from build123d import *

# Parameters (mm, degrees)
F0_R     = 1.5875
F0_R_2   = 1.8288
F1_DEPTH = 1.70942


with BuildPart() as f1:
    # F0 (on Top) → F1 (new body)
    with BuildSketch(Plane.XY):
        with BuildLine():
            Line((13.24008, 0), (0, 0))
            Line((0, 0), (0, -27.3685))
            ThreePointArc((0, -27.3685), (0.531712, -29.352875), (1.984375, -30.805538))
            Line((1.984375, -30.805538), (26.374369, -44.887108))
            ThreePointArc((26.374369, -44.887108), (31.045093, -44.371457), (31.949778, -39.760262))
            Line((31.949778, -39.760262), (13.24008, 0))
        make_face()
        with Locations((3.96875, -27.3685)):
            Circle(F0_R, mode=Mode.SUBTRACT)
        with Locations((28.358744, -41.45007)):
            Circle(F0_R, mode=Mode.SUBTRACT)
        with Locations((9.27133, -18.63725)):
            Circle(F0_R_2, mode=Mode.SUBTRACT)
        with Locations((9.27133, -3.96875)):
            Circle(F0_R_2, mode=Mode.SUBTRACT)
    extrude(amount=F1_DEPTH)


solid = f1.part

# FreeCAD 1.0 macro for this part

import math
import FreeCAD as App
import Part
import Sketcher

V = App.Vector
Q = App.Units.Quantity

doc = App.newDocument("Part")
body = doc.addObject("PartDesign::Body", "Body")

sketch1 = body.newObject("Sketcher::SketchObject", "Sketch")
sketch1.AttachmentSupport = (doc.getObject("XY_Plane"), [""])
sketch1.MapMode = "FlatFace"
sketch1.addGeometry([
    Part.LineSegment(V(13.24008, 0, 0), V(0, 0, 0)),
    Part.LineSegment(V(0, 0, 0), V(0, -27.3685, 0)),
    Part.ArcOfCircle(Part.Circle(V(3.968751, -27.368499, 0), V(0, 0, 1), 3.968751), math.radians(-179.999989), math.radians(-120.000006)),
    Part.LineSegment(V(1.984375, -30.805538, 0), V(26.374369, -44.887108, 0)),
    Part.ArcOfCircle(Part.Circle(V(28.358744, -41.45007, 0), V(0, 0, 1), 3.96875), math.radians(-119.999997), math.radians(25.199937)),
    Part.LineSegment(V(31.949778, -39.760262, 0), V(13.24008, 0, 0)),
    Part.Circle(V(3.96875, -27.3685, 0), V(0, 0, 1), 1.5875),
    Part.Circle(V(28.358744, -41.45007, 0), V(0, 0, 1), 1.5875),
    Part.Circle(V(9.27133, -18.63725, 0), V(0, 0, 1), 1.8288),
    Part.Circle(V(9.27133, -3.96875, 0), V(0, 0, 1), 1.8288),
], False)
sketch1.addConstraint([
    Sketcher.Constraint("Coincident", 0, 2, 1, 1),
    Sketcher.Constraint("Tangent", 1, 2, 2, 1),
    Sketcher.Constraint("Tangent", 2, 2, 3, 1),
    Sketcher.Constraint("Tangent", 3, 2, 4, 1),
    Sketcher.Constraint("Tangent", 4, 2, 5, 1),
    Sketcher.Constraint("Coincident", 5, 2, 0, 1),
    Sketcher.Constraint("Horizontal", 0),
    Sketcher.Constraint("Vertical", 1),
    Sketcher.Constraint("Coincident", 0, 2, -1, 1),
    Sketcher.Constraint("Coincident", 6, 3, 2, 3),
    Sketcher.Constraint("Coincident", 7, 3, 4, 3),
    Sketcher.Constraint("Equal", 2, 4),
    Sketcher.Constraint("Equal", 6, 7),
    Sketcher.Constraint("Equal", 8, 9),
    Sketcher.Constraint("Vertical", 8, 3, 9, 3),
    Sketcher.Constraint("Diameter", 6, Q("0.125 in")),
    Sketcher.Constraint("Diameter", 8, Q("0.144 in")),
    Sketcher.Constraint("Angle", 3, Q("-30.000001 deg")),
    Sketcher.Constraint("Radius", 2, Q("0.15625 in")),
    Sketcher.Constraint("DistanceY", 1, 2, 1, 1, Q("1.0775 in")),
    Sketcher.Constraint("DistanceY", 9, 3, -1, 1, Q("0.15625 in")),
    Sketcher.Constraint("DistanceY", 2, 3, 8, 3, Q("0.34375 in")),
    Sketcher.Constraint("DistanceX", 9, 3, 5, 2, Q("0.15625 in")),
    Sketcher.Constraint("DistanceX", 0, 2, 0, 1, 13.24008),
    Sketcher.Constraint("Distance", 3, 28.163139),
])
pad1 = body.newObject("PartDesign::Pad", "Pad")
pad1.Profile = sketch1
pad1.Length = Q("0.0673 in")

doc.recompute()
